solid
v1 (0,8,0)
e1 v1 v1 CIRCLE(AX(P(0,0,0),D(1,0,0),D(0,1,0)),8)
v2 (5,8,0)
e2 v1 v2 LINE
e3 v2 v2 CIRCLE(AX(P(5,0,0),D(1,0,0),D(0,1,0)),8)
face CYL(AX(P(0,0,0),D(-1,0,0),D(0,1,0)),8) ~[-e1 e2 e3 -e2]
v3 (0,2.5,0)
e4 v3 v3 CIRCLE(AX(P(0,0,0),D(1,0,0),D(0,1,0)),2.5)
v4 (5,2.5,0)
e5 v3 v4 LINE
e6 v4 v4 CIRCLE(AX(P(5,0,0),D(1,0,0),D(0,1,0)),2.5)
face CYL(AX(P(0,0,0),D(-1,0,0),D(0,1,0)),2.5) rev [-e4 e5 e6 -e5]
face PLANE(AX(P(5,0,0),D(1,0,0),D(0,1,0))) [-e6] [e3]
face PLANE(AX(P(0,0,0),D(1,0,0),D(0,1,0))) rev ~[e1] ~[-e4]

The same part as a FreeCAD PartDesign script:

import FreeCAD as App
import Part
import Sketcher
from FreeCAD import Vector
Q = App.Units.Quantity

doc = App.newDocument("Part")
params = doc.addObject("Spreadsheet::Sheet", "Params")
for row, (alias, value) in enumerate([
    ("sketch1_diameter", "16 mm"),
    ("sketch1_diameter2", "5 mm"),
    ("pad1_length", "5 mm"),
], start=1):
    params.set(f"A{row}", alias)
    params.set(f"B{row}", "=" + value)
    params.setAlias(f"B{row}", alias)

body = doc.addObject("PartDesign::Body", "Body")

# Sketch on YZ plane
sketch1 = body.newObject("Sketcher::SketchObject", "Sketch")
sketch1.AttachmentSupport = (doc.getObject("YZ_Plane"), [""])
sketch1.MapMode = "FlatFace"
sketch1.addGeometry([
    Part.Circle(Vector(0, 0, 0), Vector(0, 0, 1), 8),
    Part.Circle(Vector(0, 0, 0), Vector(0, 0, 1), 2.5),
], False)
sketch1.addConstraint([
    Sketcher.Constraint("Coincident", 0, 3, -1, 1),
    Sketcher.Constraint("Coincident", 1, 3, -1, 1),
    Sketcher.Constraint("Diameter", 0, Q("16 mm")),
    Sketcher.Constraint("Diameter", 1, Q("5 mm")),
])
sketch1.setExpression("Constraints[2]", "Params.sketch1_diameter")
sketch1.setExpression("Constraints[3]", "Params.sketch1_diameter2")
pad1 = body.newObject("PartDesign::Pad", "Pad")
pad1.Profile = sketch1
pad1.setExpression("Length", "Params.pad1_length")

doc.recompute()
